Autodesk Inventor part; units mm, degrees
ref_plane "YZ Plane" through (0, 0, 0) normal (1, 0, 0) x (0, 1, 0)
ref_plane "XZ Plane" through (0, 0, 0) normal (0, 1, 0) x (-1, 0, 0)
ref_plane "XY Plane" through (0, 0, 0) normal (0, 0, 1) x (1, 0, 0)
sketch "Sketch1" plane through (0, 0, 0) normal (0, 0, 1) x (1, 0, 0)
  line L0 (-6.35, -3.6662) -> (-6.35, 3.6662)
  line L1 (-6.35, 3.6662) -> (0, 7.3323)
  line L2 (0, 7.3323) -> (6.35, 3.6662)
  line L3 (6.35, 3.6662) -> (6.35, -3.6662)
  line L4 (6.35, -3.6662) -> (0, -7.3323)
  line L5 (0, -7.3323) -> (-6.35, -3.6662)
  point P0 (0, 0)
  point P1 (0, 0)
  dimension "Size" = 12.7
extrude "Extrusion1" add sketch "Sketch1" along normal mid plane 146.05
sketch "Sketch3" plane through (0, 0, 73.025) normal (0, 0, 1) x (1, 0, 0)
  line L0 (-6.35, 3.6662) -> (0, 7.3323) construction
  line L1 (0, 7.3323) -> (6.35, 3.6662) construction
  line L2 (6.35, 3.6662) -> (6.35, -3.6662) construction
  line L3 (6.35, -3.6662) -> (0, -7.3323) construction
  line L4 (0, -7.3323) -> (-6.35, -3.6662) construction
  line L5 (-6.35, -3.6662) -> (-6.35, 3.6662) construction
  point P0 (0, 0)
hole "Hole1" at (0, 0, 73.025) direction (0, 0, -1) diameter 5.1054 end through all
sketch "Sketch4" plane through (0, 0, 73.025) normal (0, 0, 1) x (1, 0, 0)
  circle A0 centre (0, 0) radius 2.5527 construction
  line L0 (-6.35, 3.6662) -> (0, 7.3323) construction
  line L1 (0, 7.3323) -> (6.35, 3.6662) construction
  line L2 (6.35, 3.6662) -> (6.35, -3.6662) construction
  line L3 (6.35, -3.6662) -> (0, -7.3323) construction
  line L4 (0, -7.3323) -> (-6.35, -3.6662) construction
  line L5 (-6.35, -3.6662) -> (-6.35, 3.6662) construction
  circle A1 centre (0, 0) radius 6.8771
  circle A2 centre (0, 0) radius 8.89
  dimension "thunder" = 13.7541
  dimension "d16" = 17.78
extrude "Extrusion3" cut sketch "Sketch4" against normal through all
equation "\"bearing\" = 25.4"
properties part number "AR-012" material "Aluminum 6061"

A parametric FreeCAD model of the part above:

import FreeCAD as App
import Part
import Sketcher
Q = App.Units.Quantity


def add_polygon(sketch, points):
    """Adds a closed chain of lines whose ends are joined by coincident constraints."""
    first, n = sketch.GeometryCount, len(points)
    for a, b in zip(points, points[1:] + points[:1]):
        sketch.addGeometry(Part.LineSegment(App.Vector(*a, 0), App.Vector(*b, 0)), False)
    for i in range(n):
        sketch.addConstraint(Sketcher.Constraint("Coincident", first + i, 2, first + (i + 1) % n, 1))

doc = App.newDocument("Part")
params = doc.addObject("Spreadsheet::Sheet", "Params")
for row, (alias, value) in enumerate([
    ("pad1_length", "5.75 in"),
    ("sketch2_diameter", "0.201 in"),
    ("hole_diameter", "0.201 in"),
    ("sketch3_diameter", "0.7 in"),
], start=1):
    params.set(f"A{row}", alias)
    params.set(f"B{row}", "=" + value)
    params.setAlias(f"B{row}", alias)

body = doc.addObject("PartDesign::Body", "Body")

# Sketch on XY plane
sketch1 = body.newObject("Sketcher::SketchObject", "Sketch")
sketch1.AttachmentSupport = (doc.getObject("XY_Plane"), [""])
sketch1.MapMode = "FlatFace"
add_polygon(sketch1, [(-6, 4), (-6, -4), (0, -7), (6, -4), (6, 4), (0, 7)])  # lines 0-5
sketch1.addConstraint(Sketcher.Constraint("Vertical", 0))
sketch1.addConstraint(Sketcher.Constraint("Vertical", 3))
sketch1.addConstraint(Sketcher.Constraint("Symmetric", 0, 2, 3, 2, -1, 1))
sketch1.addConstraint(Sketcher.Constraint("Symmetric", 1, 2, 4, 2, -1, 1))
sketch1.addConstraint(Sketcher.Constraint("PointOnObject", 1, 2, -2))
sketch1.addConstraint(Sketcher.Constraint("Parallel", 2, 5))
sketch1.addConstraint(Sketcher.Constraint("Horizontal", 0, 2, 2, 2))
sketch1.addConstraint(Sketcher.Constraint("DistanceX", 0, 2, 2, 2, Q("0.5 in")))
sketch1.addConstraint(Sketcher.Constraint("Angle", 1, Q("-29.9995 deg")))
sketch1.addConstraint(Sketcher.Constraint("DistanceY", 1, 2, 3, 2, Q("0.433 in")))
pad1 = body.newObject("PartDesign::Pad", "Pad")
pad1.Profile = sketch1
pad1.setExpression("Length", "Params.pad1_length")
pad1.Midplane = True

# Sketch on XY plane
sketch2 = body.newObject("Sketcher::SketchObject", "Sketch001")
sketch2.AttachmentSupport = (doc.getObject("XY_Plane"), [""])
sketch2.MapMode = "FlatFace"
sketch2.AttachmentOffset = App.Placement(App.Vector(0, 0, 2.875 * 25.4), App.Rotation())
sketch2.addGeometry(Part.Circle(App.Vector(0, 0, 0), App.Vector(0, 0, 1), 2.6), False)
sketch2.addConstraint(Sketcher.Constraint("Coincident", 0, 3, -1, 1))
sketch2.addConstraint(Sketcher.Constraint("Diameter", 0, Q("0.201 in")))
sketch2.setExpression("Constraints[1]", "Params.sketch2_diameter")
doc.recompute()
hole = body.newObject("PartDesign::Hole", "Hole")
hole.Profile = sketch2
hole.ThreadType = "None"
hole.setExpression("Diameter", "Params.hole_diameter")
hole.DepthType = "ThroughAll"

# Sketch on XY plane
sketch3 = body.newObject("Sketcher::SketchObject", "Sketch002")
sketch3.AttachmentSupport = (doc.getObject("XY_Plane"), [""])
sketch3.MapMode = "FlatFace"
sketch3.AttachmentOffset = App.Placement(App.Vector(0, 0, 2.875 * 25.4), App.Rotation())
sketch3.addGeometry(Part.Circle(App.Vector(0, 0, 0), App.Vector(0, 0, 1), 9), False)
sketch3.addGeometry(Part.Circle(App.Vector(0, 0, 0), App.Vector(0, 0, 1), 7), False)
sketch3.addConstraint(Sketcher.Constraint("Coincident", 0, 3, -1, 1))
sketch3.addConstraint(Sketcher.Constraint("Coincident", 1, 3, -1, 1))
sketch3.addConstraint(Sketcher.Constraint("Diameter", 0, Q("0.7 in")))
sketch3.addConstraint(Sketcher.Constraint("Diameter", 1, Q("0.5415 in")))
sketch3.setExpression("Constraints[2]", "Params.sketch3_diameter")
pocket1 = body.newObject("PartDesign::Pocket", "Pocket")
pocket1.Profile = sketch3
pocket1.Type = "ThroughAll"

doc.recompute()
